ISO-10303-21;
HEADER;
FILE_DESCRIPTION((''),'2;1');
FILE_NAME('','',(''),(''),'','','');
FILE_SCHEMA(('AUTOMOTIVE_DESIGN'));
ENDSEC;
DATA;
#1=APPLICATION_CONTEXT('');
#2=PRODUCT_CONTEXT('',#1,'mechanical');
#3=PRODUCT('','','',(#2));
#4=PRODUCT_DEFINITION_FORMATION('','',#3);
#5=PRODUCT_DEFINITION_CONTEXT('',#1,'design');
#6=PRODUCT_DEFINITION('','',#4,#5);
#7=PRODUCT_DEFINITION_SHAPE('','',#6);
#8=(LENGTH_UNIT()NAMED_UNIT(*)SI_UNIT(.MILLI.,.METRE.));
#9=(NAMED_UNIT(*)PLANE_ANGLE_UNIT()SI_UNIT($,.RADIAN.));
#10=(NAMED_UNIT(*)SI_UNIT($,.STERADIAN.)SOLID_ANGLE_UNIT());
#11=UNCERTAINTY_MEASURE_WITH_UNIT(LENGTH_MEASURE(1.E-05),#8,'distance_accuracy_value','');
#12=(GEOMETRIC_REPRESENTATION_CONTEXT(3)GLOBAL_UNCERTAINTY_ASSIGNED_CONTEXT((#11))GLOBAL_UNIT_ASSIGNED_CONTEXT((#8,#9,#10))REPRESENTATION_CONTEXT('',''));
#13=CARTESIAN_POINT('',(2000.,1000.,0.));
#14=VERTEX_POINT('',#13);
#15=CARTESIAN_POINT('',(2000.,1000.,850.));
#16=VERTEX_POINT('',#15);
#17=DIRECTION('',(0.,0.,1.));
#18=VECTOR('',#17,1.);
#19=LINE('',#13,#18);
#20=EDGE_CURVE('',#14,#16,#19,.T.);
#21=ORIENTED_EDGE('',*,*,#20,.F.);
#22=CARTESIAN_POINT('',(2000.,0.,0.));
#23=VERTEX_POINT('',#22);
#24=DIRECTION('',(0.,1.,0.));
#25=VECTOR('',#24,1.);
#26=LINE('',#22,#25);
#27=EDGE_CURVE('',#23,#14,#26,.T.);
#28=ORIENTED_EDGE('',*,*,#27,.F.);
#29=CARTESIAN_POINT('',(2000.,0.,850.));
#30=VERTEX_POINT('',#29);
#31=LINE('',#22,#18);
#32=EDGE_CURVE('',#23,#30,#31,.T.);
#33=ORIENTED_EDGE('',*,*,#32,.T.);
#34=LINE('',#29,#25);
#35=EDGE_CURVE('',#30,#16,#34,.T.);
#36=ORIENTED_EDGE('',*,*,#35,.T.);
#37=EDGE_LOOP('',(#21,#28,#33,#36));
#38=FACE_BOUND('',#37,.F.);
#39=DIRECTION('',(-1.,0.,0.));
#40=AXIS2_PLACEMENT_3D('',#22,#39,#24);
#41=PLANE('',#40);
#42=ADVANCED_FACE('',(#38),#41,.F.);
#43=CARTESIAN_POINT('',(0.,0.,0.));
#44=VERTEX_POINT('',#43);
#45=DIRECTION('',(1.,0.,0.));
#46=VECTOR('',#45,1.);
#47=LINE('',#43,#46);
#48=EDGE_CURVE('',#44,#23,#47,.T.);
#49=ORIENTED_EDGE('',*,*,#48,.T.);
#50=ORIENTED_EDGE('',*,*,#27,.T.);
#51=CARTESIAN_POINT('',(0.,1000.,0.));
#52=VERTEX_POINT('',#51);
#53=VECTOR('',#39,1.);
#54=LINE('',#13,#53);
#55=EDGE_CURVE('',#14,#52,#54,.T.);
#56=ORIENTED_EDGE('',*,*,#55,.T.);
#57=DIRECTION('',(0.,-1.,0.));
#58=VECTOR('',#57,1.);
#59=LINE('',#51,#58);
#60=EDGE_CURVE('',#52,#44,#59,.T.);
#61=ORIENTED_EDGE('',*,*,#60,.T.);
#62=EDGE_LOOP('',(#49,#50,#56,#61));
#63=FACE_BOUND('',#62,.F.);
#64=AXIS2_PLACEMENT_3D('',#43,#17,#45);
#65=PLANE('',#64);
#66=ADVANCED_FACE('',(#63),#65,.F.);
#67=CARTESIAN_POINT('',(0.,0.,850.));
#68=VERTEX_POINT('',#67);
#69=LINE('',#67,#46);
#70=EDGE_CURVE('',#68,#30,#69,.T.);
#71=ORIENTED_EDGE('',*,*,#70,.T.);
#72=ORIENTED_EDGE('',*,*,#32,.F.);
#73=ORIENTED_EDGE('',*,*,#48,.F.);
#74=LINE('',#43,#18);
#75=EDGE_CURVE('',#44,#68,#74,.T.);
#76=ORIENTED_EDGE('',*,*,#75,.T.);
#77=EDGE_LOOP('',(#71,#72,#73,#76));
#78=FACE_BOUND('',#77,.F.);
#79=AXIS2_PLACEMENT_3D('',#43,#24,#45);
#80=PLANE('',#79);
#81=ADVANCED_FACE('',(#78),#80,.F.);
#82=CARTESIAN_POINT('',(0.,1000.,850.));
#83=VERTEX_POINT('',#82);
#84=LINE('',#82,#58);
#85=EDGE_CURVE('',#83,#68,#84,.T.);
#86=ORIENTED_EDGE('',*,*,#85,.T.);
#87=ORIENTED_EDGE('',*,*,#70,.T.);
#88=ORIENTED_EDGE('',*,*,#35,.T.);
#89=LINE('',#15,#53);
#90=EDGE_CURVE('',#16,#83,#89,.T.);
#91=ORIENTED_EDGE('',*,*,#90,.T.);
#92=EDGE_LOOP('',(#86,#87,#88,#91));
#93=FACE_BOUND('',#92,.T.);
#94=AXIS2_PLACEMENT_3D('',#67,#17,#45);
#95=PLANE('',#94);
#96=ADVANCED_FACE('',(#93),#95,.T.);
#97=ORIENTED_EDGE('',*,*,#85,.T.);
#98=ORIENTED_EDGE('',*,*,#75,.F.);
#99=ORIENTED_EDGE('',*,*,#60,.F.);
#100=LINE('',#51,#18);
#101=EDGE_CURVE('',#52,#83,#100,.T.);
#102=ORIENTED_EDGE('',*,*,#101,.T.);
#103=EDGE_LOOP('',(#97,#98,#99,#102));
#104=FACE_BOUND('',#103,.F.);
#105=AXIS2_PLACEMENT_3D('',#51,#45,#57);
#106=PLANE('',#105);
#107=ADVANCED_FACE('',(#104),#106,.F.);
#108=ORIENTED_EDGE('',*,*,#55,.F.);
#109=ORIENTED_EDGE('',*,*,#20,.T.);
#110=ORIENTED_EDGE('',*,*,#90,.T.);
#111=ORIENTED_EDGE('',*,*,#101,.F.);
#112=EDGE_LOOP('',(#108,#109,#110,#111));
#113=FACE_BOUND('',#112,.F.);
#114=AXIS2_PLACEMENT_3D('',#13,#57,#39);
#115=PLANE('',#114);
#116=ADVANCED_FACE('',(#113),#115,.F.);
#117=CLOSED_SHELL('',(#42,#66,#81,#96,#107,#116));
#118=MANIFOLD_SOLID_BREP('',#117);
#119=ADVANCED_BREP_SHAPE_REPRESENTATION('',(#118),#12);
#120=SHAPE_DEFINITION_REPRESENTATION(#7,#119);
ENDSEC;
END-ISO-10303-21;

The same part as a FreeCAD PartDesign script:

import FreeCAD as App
import Part
import Sketcher

V = App.Vector


def add_polygon(sketch, points):
    """Adds a closed chain of lines whose ends are joined by coincident constraints."""
    first, n = sketch.GeometryCount, len(points)
    for a, b in zip(points, points[1:] + points[:1]):
        sketch.addGeometry(Part.LineSegment(App.Vector(*a, 0), App.Vector(*b, 0)), False)
    for i in range(n):
        sketch.addConstraint(Sketcher.Constraint("Coincident", first + i, 2, first + (i + 1) % n, 1))

doc = App.newDocument("Part")
body = doc.addObject("PartDesign::Body", "Body")

# Sketch on XY plane
sketch1 = doc.addObject("Sketcher::SketchObject", "Sketch")
body.addObject(sketch1)
sketch1.AttachmentSupport = (doc.XY_Plane, [""])
sketch1.MapMode = "FlatFace"
add_polygon(sketch1, [(0, 1000), (0, 0), (2000, 0), (2000, 1000)])  # lines 0-3
sketch1.addConstraint([
    Sketcher.Constraint("Vertical", 0),
    Sketcher.Constraint("Horizontal", 1),
    Sketcher.Constraint("Vertical", 2),
    Sketcher.Constraint("Horizontal", 3),
    Sketcher.Constraint("Coincident", 0, 2, -1, 1),
    Sketcher.Constraint("DistanceX", 1, 1, 1, 2, 2000.0),
    Sketcher.Constraint("DistanceY", 0, 2, 0, 1, 1000.0),
])
pad1 = doc.addObject("PartDesign::Pad", "Pad")
body.addObject(pad1)
pad1.Profile = sketch1
pad1.Length = 850

doc.recompute()
